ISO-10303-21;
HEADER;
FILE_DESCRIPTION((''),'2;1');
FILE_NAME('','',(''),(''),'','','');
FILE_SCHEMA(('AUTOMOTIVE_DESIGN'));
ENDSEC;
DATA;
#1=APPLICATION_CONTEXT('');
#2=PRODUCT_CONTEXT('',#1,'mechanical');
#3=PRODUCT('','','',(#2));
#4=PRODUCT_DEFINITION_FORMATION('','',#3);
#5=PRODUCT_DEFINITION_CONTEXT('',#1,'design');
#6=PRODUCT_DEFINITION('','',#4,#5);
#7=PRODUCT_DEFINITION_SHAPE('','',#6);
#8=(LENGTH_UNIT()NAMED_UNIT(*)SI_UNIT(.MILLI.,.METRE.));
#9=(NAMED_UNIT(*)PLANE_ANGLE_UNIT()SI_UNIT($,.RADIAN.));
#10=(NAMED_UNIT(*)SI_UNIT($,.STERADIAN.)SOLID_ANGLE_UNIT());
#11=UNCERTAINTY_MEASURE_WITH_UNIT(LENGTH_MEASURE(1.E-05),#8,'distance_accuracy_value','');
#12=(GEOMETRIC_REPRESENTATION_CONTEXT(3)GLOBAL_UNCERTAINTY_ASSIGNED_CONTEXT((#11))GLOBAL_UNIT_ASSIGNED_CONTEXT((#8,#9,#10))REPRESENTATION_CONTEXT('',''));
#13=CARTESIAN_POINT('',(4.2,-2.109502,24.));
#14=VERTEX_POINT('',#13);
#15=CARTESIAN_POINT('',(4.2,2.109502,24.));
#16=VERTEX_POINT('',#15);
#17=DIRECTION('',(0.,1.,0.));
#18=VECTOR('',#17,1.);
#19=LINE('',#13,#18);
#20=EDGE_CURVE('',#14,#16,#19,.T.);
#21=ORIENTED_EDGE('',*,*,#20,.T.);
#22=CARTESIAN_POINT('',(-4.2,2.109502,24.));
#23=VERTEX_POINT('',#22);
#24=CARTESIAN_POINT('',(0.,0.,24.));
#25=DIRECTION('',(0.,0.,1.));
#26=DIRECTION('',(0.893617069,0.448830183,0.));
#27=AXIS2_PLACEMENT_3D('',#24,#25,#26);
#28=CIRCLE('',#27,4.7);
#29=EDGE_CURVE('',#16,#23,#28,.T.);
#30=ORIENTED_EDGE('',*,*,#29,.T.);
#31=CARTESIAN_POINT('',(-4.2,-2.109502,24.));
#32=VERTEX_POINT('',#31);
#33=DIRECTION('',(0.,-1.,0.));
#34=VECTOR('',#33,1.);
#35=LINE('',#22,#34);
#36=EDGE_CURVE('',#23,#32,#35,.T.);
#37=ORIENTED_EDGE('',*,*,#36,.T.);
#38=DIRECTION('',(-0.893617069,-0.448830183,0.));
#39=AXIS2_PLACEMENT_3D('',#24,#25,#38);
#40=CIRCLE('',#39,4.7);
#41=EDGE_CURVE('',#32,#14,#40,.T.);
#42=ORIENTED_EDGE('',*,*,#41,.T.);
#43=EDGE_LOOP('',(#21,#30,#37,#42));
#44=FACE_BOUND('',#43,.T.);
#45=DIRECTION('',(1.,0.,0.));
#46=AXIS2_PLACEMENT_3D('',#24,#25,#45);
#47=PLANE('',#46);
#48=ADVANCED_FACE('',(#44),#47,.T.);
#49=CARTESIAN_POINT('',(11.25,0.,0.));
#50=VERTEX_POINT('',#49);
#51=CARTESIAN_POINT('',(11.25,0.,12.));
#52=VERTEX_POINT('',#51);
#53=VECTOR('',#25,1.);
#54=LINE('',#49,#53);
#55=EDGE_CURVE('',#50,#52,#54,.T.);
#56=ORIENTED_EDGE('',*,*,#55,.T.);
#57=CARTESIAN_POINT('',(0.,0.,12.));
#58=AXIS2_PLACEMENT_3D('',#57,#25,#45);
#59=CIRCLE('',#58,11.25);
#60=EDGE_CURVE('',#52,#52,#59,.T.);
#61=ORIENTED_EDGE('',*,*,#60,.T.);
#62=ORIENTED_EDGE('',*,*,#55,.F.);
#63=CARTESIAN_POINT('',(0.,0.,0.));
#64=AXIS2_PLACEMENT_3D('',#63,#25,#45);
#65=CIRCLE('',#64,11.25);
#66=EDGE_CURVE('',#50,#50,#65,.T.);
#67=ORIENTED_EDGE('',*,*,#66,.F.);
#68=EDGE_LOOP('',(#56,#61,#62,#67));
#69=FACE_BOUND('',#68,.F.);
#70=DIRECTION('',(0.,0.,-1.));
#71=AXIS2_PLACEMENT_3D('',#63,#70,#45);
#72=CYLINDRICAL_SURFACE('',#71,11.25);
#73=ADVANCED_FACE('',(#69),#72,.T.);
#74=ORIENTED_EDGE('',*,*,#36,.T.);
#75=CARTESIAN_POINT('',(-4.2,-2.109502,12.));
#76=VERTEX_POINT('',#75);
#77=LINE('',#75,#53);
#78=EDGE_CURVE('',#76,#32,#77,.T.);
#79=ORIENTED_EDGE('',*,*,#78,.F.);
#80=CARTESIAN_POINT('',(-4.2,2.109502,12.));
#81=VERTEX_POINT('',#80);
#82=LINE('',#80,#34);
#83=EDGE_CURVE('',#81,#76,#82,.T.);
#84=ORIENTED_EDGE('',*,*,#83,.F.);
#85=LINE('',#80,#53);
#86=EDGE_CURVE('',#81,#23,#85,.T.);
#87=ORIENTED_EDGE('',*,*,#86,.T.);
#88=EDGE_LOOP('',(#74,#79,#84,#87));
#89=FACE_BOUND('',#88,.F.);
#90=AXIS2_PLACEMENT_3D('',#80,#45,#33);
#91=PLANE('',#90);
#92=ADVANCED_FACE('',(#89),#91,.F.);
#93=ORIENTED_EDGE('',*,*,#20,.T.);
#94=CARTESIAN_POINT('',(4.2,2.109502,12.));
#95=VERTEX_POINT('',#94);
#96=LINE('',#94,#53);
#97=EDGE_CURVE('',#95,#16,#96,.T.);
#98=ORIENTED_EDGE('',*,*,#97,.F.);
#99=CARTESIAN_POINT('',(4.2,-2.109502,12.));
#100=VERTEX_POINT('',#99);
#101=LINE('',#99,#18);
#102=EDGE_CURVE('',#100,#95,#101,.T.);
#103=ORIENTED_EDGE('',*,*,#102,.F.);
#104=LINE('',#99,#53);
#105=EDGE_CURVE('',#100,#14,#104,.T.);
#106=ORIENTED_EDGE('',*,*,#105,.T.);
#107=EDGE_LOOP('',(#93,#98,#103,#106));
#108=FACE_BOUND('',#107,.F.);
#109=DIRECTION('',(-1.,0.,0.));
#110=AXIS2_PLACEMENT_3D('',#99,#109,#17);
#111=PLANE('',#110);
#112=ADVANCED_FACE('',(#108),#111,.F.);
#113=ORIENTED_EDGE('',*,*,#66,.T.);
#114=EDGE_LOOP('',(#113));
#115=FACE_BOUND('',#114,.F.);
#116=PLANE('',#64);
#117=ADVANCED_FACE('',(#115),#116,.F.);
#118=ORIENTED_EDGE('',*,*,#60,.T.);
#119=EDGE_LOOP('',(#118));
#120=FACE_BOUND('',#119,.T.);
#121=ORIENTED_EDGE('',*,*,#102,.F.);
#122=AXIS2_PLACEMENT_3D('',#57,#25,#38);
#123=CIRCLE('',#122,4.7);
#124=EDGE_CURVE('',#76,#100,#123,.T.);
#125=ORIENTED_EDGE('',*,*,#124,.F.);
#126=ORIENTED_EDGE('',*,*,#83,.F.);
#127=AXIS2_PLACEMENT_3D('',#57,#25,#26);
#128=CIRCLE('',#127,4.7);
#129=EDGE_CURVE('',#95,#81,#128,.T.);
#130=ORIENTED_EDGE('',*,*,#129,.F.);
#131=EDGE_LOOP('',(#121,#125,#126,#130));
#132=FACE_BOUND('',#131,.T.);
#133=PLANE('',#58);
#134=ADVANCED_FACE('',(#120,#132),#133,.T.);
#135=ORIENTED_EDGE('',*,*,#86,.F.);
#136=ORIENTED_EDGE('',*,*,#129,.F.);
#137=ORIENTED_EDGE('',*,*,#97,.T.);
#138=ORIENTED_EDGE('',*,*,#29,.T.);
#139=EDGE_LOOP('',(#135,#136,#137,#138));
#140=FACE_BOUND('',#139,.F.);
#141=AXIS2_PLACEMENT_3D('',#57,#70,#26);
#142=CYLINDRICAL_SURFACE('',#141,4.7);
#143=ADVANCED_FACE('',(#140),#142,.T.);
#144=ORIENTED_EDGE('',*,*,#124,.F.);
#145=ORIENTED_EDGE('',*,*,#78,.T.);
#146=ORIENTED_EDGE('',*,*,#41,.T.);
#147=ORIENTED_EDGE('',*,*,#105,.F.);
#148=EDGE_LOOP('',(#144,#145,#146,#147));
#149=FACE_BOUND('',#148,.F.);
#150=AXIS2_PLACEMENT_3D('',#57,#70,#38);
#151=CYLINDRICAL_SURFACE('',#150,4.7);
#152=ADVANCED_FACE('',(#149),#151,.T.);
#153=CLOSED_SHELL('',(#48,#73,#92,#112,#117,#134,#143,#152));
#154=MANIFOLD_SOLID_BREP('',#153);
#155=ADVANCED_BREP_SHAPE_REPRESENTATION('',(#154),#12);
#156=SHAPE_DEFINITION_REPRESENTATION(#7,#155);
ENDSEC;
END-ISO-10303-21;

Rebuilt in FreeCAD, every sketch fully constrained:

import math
import FreeCAD as App
import Part
import Sketcher

V = App.Vector

doc = App.newDocument("Part")
body = doc.addObject("PartDesign::Body", "Body")

# Sketch on XY plane
sketch1 = body.newObject("Sketcher::SketchObject", "Sketch")
sketch1.AttachmentSupport = (doc.getObject("XY_Plane"), [""])
sketch1.MapMode = "FlatFace"
sketch1.addGeometry(Part.Circle(V(0, 0, 0), V(0, 0, 1), 11), False)
sketch1.addConstraint([
    Sketcher.Constraint("Coincident", 0, 3, -1, 1),
    Sketcher.Constraint("Diameter", 0, 22.5),
])
pad1 = body.newObject("PartDesign::Pad", "Pad")
pad1.Profile = sketch1
pad1.Length = 12

# Sketch on XY plane
sketch2 = body.newObject("Sketcher::SketchObject", "Sketch001")
sketch2.AttachmentSupport = (doc.getObject("XY_Plane"), [""])
sketch2.MapMode = "FlatFace"
sketch2.AttachmentOffset = App.Placement(V(0, 0, 12), App.Rotation())
sketch2.addGeometry([
    Part.LineSegment(V(4.2, -2.1, 0), V(4.2, 2.1, 0)),
    Part.ArcOfCircle(Part.Circle(V(0, 0, 0), V(0, 0, 1), 4.7), math.radians(27), math.radians(153)),
    Part.LineSegment(V(-4.2, 2.1, 0), V(-4.2, -2.1, 0)),
    Part.ArcOfCircle(Part.Circle(V(0, 0, 0), V(0, 0, 1), 4.7), math.radians(-153), math.radians(-27)),
], False)
sketch2.addConstraint([
    Sketcher.Constraint("Coincident", 0, 2, 1, 1),
    Sketcher.Constraint("Coincident", 1, 2, 2, 1),
    Sketcher.Constraint("Coincident", 2, 2, 3, 1),
    Sketcher.Constraint("Coincident", 3, 2, 0, 1),
    Sketcher.Constraint("Vertical", 0),
    Sketcher.Constraint("Vertical", 2),
    Sketcher.Constraint("Coincident", 1, 3, -1, 1),
    Sketcher.Constraint("Coincident", 3, 3, -1, 1),
    Sketcher.Constraint("Equal", 1, 3),
    Sketcher.Constraint("Horizontal", 0, 2, 1, 2),
    Sketcher.Constraint("Radius", 1, 4.7),
    Sketcher.Constraint("DistanceX", -1, 1, 0, 2, 4.2),
])
pad2 = body.newObject("PartDesign::Pad", "Pad001")
pad2.Profile = sketch2
pad2.Length = 12

doc.recompute()
